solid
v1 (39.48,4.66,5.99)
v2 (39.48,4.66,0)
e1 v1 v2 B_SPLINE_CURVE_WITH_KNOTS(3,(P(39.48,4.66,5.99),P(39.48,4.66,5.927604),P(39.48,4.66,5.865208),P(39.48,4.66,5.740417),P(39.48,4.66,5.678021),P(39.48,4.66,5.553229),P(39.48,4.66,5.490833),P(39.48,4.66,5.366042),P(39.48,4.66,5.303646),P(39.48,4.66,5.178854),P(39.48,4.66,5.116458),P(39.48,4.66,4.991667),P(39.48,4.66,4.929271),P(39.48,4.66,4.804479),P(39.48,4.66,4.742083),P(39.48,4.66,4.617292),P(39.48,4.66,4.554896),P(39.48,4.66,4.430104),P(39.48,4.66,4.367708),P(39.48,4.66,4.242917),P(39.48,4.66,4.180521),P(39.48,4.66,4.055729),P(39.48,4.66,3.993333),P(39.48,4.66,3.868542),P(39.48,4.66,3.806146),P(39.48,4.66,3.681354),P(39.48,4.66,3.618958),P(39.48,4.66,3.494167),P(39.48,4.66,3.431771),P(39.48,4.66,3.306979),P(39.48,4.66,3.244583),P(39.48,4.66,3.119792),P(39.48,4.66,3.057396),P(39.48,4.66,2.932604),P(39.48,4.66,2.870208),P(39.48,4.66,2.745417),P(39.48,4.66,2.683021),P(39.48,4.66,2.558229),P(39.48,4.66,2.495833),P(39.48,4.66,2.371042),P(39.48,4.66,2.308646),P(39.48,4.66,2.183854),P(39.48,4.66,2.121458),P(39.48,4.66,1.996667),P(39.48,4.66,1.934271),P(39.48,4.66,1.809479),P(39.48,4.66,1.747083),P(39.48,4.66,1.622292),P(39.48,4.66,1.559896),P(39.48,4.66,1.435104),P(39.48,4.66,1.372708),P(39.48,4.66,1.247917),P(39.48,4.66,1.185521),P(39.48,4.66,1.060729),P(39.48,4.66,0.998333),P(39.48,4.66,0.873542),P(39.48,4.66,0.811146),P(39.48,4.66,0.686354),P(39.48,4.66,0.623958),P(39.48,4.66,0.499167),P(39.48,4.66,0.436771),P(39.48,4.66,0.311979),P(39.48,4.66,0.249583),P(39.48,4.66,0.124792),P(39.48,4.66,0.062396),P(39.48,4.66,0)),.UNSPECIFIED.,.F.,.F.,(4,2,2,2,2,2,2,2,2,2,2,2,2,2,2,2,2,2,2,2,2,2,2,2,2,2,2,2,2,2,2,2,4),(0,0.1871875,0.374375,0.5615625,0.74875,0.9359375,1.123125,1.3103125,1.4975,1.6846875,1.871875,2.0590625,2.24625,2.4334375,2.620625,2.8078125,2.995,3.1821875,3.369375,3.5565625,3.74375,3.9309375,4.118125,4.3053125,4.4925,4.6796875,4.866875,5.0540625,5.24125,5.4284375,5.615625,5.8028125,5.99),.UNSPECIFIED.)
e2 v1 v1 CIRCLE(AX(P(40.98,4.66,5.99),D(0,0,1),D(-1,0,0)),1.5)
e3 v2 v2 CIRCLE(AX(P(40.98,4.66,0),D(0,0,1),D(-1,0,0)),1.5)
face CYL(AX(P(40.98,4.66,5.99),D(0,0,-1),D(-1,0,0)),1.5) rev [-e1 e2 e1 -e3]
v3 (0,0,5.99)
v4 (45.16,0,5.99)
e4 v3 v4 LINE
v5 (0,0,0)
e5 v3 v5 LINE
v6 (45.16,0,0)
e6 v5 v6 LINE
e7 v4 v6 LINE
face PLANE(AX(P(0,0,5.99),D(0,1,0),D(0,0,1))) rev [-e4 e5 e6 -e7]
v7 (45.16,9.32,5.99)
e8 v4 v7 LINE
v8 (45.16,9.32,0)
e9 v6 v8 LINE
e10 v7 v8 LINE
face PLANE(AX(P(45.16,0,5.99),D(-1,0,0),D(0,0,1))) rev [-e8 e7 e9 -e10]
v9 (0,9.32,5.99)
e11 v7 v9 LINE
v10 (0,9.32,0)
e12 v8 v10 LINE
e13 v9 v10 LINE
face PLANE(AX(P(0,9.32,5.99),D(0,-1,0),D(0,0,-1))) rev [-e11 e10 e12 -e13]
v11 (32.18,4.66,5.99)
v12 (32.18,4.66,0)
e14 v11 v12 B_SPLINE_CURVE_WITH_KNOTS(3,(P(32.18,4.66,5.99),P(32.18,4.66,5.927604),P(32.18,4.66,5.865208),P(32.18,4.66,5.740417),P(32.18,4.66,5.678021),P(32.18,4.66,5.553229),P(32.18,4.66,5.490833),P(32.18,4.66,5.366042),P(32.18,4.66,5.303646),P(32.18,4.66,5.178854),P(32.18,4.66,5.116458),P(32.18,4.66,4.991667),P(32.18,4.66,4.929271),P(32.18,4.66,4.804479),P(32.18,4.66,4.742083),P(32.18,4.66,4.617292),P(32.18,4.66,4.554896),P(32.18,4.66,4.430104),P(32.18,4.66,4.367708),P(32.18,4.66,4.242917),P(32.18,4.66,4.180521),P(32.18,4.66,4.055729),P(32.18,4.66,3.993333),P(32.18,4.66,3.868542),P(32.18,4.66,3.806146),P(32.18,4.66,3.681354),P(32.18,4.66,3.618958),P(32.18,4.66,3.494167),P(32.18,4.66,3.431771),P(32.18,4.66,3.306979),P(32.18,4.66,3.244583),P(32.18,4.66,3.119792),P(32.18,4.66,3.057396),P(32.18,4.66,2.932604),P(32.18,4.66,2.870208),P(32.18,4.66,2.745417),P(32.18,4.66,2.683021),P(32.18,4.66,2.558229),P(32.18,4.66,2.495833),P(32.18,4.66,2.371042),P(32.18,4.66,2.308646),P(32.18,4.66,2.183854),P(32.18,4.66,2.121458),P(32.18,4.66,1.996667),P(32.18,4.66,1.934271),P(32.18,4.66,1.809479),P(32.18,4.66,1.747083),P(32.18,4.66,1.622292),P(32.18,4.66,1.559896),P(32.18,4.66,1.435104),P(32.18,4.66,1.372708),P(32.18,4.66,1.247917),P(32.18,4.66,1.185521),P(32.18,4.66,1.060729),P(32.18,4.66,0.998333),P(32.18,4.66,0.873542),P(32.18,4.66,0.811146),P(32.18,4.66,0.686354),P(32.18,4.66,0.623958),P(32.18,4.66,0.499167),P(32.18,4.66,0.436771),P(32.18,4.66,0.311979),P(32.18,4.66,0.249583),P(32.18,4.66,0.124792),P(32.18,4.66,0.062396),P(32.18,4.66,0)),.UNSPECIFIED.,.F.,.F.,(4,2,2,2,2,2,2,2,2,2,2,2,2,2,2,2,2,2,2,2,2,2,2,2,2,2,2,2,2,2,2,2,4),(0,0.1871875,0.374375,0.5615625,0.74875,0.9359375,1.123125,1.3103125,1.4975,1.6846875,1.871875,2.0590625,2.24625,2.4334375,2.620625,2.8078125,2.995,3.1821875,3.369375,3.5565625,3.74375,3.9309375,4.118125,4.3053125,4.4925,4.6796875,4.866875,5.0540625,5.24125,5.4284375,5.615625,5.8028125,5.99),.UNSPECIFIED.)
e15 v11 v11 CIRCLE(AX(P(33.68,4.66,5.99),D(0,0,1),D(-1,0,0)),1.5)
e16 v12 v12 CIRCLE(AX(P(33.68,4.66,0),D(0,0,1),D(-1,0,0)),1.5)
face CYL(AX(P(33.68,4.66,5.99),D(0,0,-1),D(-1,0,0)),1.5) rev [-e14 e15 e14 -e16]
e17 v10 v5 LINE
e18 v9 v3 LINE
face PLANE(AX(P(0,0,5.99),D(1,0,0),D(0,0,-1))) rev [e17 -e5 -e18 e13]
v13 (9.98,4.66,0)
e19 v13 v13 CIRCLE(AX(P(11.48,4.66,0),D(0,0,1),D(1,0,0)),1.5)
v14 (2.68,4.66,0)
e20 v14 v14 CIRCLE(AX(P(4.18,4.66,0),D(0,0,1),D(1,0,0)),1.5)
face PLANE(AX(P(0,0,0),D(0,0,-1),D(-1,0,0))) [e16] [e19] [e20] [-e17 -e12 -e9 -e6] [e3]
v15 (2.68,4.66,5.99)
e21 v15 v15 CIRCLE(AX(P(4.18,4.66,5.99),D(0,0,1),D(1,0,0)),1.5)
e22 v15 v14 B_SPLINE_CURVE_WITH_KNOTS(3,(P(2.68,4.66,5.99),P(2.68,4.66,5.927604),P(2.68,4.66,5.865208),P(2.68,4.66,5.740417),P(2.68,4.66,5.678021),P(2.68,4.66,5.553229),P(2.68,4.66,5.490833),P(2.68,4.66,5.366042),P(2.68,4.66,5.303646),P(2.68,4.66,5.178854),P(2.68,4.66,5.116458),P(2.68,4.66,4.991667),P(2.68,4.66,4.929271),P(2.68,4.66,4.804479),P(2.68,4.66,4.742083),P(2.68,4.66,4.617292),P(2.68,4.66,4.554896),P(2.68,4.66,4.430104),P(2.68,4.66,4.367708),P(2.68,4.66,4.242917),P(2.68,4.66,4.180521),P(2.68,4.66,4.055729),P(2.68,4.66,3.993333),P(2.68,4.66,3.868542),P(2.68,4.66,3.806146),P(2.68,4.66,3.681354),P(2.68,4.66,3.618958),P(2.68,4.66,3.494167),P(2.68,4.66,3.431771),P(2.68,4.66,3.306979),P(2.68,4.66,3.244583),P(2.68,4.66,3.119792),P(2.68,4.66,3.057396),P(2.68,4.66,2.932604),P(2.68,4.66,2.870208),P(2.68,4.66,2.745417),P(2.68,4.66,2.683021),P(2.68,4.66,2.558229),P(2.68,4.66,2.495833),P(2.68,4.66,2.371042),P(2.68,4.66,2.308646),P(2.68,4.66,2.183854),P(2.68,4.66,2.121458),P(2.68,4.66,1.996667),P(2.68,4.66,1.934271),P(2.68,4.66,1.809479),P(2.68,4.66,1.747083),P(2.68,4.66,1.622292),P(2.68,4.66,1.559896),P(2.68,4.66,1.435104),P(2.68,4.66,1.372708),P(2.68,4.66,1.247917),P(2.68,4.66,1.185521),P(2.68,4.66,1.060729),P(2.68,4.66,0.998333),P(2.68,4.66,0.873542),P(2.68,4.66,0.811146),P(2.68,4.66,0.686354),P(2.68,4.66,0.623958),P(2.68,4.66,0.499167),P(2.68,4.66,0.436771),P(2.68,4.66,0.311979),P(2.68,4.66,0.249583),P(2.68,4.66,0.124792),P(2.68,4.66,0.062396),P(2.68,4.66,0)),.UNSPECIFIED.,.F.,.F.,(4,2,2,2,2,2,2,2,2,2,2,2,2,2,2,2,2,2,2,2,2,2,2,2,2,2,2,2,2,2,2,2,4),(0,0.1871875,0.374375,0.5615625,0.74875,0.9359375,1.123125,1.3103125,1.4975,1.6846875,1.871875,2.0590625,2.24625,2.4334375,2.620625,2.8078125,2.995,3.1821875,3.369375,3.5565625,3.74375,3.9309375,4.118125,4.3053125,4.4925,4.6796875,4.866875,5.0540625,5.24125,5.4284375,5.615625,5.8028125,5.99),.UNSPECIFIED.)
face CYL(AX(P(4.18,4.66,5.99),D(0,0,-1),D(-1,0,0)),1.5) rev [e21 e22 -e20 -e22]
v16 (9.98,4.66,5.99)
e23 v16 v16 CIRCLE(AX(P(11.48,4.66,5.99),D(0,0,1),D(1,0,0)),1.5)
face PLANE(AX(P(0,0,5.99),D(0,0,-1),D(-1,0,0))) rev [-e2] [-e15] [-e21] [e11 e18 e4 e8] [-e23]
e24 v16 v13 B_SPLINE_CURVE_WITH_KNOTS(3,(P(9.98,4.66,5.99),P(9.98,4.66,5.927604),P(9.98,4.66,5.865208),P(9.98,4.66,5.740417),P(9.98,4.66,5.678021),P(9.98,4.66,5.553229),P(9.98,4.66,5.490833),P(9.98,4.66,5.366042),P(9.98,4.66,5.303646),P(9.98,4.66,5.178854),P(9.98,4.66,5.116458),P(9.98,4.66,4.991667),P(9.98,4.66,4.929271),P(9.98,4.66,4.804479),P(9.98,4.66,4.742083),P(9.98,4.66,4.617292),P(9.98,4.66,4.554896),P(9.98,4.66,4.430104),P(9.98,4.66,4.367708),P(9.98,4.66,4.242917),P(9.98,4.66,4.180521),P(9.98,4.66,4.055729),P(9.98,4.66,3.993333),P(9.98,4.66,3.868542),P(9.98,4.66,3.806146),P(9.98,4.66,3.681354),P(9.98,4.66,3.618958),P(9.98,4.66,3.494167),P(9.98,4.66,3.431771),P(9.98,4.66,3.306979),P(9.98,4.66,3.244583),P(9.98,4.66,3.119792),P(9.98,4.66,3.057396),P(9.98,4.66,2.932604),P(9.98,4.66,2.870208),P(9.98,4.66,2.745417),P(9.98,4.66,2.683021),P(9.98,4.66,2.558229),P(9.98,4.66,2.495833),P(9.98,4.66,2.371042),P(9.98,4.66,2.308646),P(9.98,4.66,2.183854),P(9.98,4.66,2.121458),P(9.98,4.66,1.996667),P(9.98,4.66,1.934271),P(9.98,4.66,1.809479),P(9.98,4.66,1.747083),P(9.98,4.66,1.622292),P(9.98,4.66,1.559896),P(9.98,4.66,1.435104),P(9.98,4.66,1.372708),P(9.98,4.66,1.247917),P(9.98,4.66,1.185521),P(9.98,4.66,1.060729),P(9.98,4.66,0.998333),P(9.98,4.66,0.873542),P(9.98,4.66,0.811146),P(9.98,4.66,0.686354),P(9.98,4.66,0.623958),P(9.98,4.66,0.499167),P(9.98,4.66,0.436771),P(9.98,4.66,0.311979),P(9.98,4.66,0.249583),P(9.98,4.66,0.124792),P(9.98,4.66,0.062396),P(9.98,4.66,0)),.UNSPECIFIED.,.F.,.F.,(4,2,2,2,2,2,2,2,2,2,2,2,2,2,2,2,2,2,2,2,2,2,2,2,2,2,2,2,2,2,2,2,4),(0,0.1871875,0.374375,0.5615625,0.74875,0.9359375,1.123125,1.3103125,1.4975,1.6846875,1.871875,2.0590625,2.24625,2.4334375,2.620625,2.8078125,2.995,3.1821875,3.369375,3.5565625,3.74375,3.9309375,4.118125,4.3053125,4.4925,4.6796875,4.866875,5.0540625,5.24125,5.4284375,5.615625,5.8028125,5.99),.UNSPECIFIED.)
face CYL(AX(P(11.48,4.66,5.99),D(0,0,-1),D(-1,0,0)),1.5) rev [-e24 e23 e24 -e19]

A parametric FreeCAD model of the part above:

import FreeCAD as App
import Part
import Sketcher
Q = App.Units.Quantity


def add_polygon(sketch, points):
    """Adds a closed chain of lines whose ends are joined by coincident constraints."""
    first, n = sketch.GeometryCount, len(points)
    for a, b in zip(points, points[1:] + points[:1]):
        sketch.addGeometry(Part.LineSegment(App.Vector(*a, 0), App.Vector(*b, 0)), False)
    for i in range(n):
        sketch.addConstraint(Sketcher.Constraint("Coincident", first + i, 2, first + (i + 1) % n, 1))

doc = App.newDocument("Part")
body = doc.addObject("PartDesign::Body", "Body")

# Sketch on XY plane
sketch1 = body.newObject("Sketcher::SketchObject", "Sketch")
sketch1.AttachmentSupport = (doc.getObject("XY_Plane"), [""])
sketch1.MapMode = "FlatFace"
add_polygon(sketch1, [(0, 9.3), (0, 0), (45.2, 0), (45.2, 9.3)])  # lines 0-3
sketch1.addGeometry(Part.Circle(App.Vector(4.2, 4.7, 0), App.Vector(0, 0, 1), 1.5), False)  # 4
sketch1.addGeometry(Part.Circle(App.Vector(11.5, 4.7, 0), App.Vector(0, 0, 1), 1.5), False)  # 5
sketch1.addGeometry(Part.Circle(App.Vector(33.7, 4.7, 0), App.Vector(0, 0, 1), 1.5), False)  # 6
sketch1.addGeometry(Part.Circle(App.Vector(41, 4.7, 0), App.Vector(0, 0, 1), 1.5), False)  # 7
sketch1.addConstraint(Sketcher.Constraint("Vertical", 0))
sketch1.addConstraint(Sketcher.Constraint("Horizontal", 1))
sketch1.addConstraint(Sketcher.Constraint("Vertical", 2))
sketch1.addConstraint(Sketcher.Constraint("Horizontal", 3))
sketch1.addConstraint(Sketcher.Constraint("Coincident", 0, 2, -1, 1))
sketch1.addConstraint(Sketcher.Constraint("Equal", 4, 5))
sketch1.addConstraint(Sketcher.Constraint("Equal", 5, 6))
sketch1.addConstraint(Sketcher.Constraint("Equal", 6, 7))
sketch1.addConstraint(Sketcher.Constraint("Horizontal", 4, 3, 5, 3))
sketch1.addConstraint(Sketcher.Constraint("Horizontal", 5, 3, 6, 3))
sketch1.addConstraint(Sketcher.Constraint("Horizontal", 6, 3, 7, 3))
sketch1.addConstraint(Sketcher.Constraint("Diameter", 4, Q("3 mm")))
sketch1.addConstraint(Sketcher.Constraint("DistanceX", 1, 1, 1, 2, Q("45.16 mm")))
sketch1.addConstraint(Sketcher.Constraint("DistanceY", 0, 2, 0, 1, Q("9.32 mm")))
sketch1.addConstraint(Sketcher.Constraint("DistanceX", 4, 3, 5, 3, Q("7.3 mm")))
sketch1.addConstraint(Sketcher.Constraint("DistanceX", 5, 3, 6, 3, Q("22.2 mm")))
sketch1.addConstraint(Sketcher.Constraint("DistanceX", 6, 3, 7, 3, Q("7.3 mm")))
sketch1.addConstraint(Sketcher.Constraint("DistanceX", -1, 1, 4, 3, Q("4.18 mm")))
sketch1.addConstraint(Sketcher.Constraint("DistanceY", -1, 1, 4, 3, Q("4.66 mm")))
pad1 = body.newObject("PartDesign::Pad", "Pad")
pad1.Profile = sketch1
pad1.Length = 5.99

doc.recompute()
